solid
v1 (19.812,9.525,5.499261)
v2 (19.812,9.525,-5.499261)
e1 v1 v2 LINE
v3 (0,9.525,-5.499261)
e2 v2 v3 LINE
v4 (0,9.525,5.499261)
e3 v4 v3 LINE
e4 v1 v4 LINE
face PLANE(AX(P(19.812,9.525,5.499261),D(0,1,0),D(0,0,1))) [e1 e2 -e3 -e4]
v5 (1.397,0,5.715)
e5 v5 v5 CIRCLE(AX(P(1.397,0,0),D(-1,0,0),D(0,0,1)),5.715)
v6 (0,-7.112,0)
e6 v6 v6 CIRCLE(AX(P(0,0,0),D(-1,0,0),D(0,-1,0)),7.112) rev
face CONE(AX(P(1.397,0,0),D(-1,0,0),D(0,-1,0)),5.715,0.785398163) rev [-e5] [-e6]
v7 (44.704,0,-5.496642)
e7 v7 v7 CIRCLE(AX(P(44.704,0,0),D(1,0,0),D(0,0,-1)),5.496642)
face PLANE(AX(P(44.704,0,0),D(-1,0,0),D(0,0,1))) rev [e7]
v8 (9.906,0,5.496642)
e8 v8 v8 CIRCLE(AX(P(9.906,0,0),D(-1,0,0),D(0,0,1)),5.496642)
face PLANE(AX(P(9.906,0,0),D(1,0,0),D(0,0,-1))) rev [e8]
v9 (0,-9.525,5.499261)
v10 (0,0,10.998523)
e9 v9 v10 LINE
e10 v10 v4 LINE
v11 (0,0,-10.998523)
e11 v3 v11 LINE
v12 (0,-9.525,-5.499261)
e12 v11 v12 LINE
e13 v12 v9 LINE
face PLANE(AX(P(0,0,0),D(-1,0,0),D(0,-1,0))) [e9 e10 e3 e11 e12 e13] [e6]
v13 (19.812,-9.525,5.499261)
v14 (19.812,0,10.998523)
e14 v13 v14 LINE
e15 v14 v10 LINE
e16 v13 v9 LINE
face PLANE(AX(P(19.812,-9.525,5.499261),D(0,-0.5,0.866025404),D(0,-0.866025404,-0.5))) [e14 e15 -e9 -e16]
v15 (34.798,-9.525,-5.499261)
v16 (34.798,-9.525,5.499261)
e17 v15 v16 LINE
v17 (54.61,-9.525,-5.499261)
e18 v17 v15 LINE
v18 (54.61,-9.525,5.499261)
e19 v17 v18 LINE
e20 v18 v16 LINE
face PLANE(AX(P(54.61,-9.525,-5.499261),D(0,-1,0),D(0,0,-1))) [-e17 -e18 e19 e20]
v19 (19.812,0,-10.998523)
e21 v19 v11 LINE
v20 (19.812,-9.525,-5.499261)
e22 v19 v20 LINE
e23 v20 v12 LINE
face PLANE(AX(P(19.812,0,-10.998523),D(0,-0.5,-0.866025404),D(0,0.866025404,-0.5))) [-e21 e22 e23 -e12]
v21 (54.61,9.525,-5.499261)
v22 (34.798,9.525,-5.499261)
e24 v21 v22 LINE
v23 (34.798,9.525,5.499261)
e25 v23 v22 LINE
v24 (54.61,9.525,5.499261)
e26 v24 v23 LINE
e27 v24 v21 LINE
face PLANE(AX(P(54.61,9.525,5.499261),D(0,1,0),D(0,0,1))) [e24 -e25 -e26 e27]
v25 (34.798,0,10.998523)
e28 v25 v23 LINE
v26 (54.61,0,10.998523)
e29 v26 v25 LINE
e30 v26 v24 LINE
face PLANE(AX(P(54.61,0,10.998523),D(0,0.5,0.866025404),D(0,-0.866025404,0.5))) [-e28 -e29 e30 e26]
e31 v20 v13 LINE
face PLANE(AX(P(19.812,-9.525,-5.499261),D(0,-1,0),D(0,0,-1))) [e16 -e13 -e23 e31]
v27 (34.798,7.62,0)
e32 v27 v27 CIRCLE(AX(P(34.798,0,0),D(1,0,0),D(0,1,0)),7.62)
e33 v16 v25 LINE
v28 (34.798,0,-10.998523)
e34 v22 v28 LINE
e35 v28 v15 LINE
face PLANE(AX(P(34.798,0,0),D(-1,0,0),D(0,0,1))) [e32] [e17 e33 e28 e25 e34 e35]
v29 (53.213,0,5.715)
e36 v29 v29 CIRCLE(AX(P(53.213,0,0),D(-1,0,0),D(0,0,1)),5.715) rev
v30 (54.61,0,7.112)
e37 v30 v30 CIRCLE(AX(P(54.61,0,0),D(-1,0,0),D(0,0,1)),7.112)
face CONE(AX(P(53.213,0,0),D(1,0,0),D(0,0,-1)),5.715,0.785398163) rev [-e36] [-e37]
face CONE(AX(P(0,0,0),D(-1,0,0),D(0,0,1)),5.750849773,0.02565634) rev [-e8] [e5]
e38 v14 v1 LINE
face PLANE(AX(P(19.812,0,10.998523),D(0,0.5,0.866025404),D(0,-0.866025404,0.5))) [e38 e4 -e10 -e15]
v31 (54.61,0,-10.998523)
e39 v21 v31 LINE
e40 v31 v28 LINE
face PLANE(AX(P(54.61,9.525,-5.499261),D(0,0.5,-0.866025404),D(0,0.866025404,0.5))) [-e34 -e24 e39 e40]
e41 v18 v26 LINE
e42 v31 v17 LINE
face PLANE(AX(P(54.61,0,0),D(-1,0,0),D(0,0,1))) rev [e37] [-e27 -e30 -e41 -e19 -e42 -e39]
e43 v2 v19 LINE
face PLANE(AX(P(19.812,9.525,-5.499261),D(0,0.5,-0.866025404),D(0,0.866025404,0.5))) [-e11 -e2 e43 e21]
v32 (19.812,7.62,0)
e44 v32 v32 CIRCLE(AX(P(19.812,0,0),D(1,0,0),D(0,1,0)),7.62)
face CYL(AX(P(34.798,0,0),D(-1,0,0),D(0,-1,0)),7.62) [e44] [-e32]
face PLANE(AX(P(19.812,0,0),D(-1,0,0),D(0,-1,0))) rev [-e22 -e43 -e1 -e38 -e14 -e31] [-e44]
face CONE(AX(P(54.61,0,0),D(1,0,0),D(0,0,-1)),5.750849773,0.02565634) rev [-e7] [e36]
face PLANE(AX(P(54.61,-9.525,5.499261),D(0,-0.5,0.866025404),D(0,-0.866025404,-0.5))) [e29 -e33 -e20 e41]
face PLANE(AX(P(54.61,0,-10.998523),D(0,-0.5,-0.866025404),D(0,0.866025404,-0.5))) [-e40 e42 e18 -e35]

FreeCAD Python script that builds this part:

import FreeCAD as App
import Part
import Sketcher

V = App.Vector
Q = App.Units.Quantity


def edges_at(feature, points):
    """Names of the edges that pass closest to the given points."""
    edges = feature.Shape.Edges
    near = lambda p: min(range(len(edges)), key=lambda i: edges[i].distToShape(Part.Vertex(*p))[0])
    return sorted({f"Edge{near(p) + 1}" for p in points})


def add_polygon(sketch, points):
    """Adds a closed chain of lines whose ends are joined by coincident constraints."""
    first, n = sketch.GeometryCount, len(points)
    for a, b in zip(points, points[1:] + points[:1]):
        sketch.addGeometry(Part.LineSegment(App.Vector(*a, 0), App.Vector(*b, 0)), False)
    for i in range(n):
        sketch.addConstraint(Sketcher.Constraint("Coincident", first + i, 2, first + (i + 1) % n, 1))

doc = App.newDocument("Part")
body = doc.addObject("PartDesign::Body", "Body")

# Sketch on YZ plane
sketch1 = doc.addObject("Sketcher::SketchObject", "Sketch")
body.addObject(sketch1)
sketch1.AttachmentSupport = (doc.YZ_Plane, [""])
sketch1.MapMode = "FlatFace"
add_polygon(sketch1, [(10, 5), (10, -5), (0, -11), (-10, -5), (-10, 5), (0, 11)])  # lines 0-5
sketch1.addConstraint([
    Sketcher.Constraint("Vertical", 0),
    Sketcher.Constraint("Vertical", 3),
    Sketcher.Constraint("Symmetric", 0, 2, 3, 2, -1, 1),
    Sketcher.Constraint("Symmetric", 1, 2, 4, 2, -1, 1),
    Sketcher.Constraint("PointOnObject", 1, 2, -2),
    Sketcher.Constraint("Parallel", 2, 5),
    Sketcher.Constraint("Horizontal", 0, 2, 2, 2),
    Sketcher.Constraint("Angle", 1, Q("-150 deg")),
    Sketcher.Constraint("DistanceX", 2, 2, 0, 2, Q("0.75 in")),
    Sketcher.Constraint("DistanceY", 0, 2, 0, 1, Q("10.998523 mm")),
])
pad1 = doc.addObject("PartDesign::Pad", "Pad")
body.addObject(pad1)
pad1.Profile = sketch1
pad1.Length = Q("0.78 in")

# Sketch on YZ plane
sketch2 = doc.addObject("Sketcher::SketchObject", "Sketch001")
body.addObject(sketch2)
sketch2.AttachmentSupport = (doc.YZ_Plane, [""])
sketch2.MapMode = "FlatFace"
sketch2.AttachmentOffset = App.Placement(V(0, 0, 0.78 * 25.4), App.Rotation())
sketch2.addGeometry(Part.Circle(V(0, 0, 0), V(0, 0, 1), 8), False)
sketch2.addConstraint([
    Sketcher.Constraint("Coincident", 0, 3, -1, 1),
    Sketcher.Constraint("Diameter", 0, Q("0.6 in")),
])
pad2 = doc.addObject("PartDesign::Pad", "Pad001")
body.addObject(pad2)
pad2.Profile = sketch2
pad2.Length = Q("0.59 in")

# Sketch on YZ plane
sketch3 = doc.addObject("Sketcher::SketchObject", "Sketch002")
body.addObject(sketch3)
sketch3.AttachmentSupport = (doc.YZ_Plane, [""])
sketch3.MapMode = "FlatFace"
sketch3.AttachmentOffset = App.Placement(V(0, 0, 1.37 * 25.4), App.Rotation())
add_polygon(sketch3, [(-10, -5), (-10, 5), (0, 11), (10, 5), (10, -5), (0, -11)])  # lines 0-5
sketch3.addConstraint([
    Sketcher.Constraint("Vertical", 0),
    Sketcher.Constraint("Vertical", 3),
    Sketcher.Constraint("Symmetric", 0, 2, 3, 2, -1, 1),
    Sketcher.Constraint("Symmetric", 1, 2, 4, 2, -1, 1),
    Sketcher.Constraint("PointOnObject", 1, 2, -2),
    Sketcher.Constraint("Parallel", 2, 5),
    Sketcher.Constraint("Horizontal", 0, 2, 2, 2),
    Sketcher.Constraint("Angle", 1, Q("30 deg")),
    Sketcher.Constraint("DistanceX", 0, 2, 2, 2, Q("0.75 in")),
    Sketcher.Constraint("DistanceY", 0, 1, 0, 2, Q("10.998523 mm")),
])
pad3 = doc.addObject("PartDesign::Pad", "Pad002")
body.addObject(pad3)
pad3.Profile = sketch3
pad3.Length = Q("0.78 in")

# Sketch on XZ plane
sketch4 = doc.addObject("Sketcher::SketchObject", "Sketch003")
body.addObject(sketch4)
sketch4.AttachmentSupport = (doc.XZ_Plane, [""])
sketch4.MapMode = "FlatFace"
add_polygon(sketch4, [(45, 0), (55, 0), (55, -6), (45, -5)])  # lines 0-3
sketch4.addConstraint([
    Sketcher.Constraint("Horizontal", 0),
    Sketcher.Constraint("Vertical", 1),
    Sketcher.Constraint("Vertical", 3),
    Sketcher.Constraint("PointOnObject", 0, 2, -1),
    Sketcher.Constraint("DistanceX", 0, 1, 0, 2, Q("0.39 in")),
    Sketcher.Constraint("DistanceX", -1, 1, 0, 2, Q("2.15 in")),
    Sketcher.Constraint("Angle", 2, Q("178.53 deg")),
    Sketcher.Constraint("DistanceY", 1, 2, 1, 1, Q("5.75085 mm")),
])
groove = doc.addObject("PartDesign::Groove", "Groove")
body.addObject(groove)
groove.Profile = sketch4
groove.ReferenceAxis = (sketch4, ["H_Axis"])
groove.Angle = 360

# Sketch on XZ plane
sketch5 = doc.addObject("Sketcher::SketchObject", "Sketch004")
body.addObject(sketch5)
sketch5.AttachmentSupport = (doc.XZ_Plane, [""])
sketch5.MapMode = "FlatFace"
add_polygon(sketch5, [(10, 0), (0, 0), (0, 6), (10, 5)])  # lines 0-3
sketch5.addConstraint([
    Sketcher.Constraint("Horizontal", 0),
    Sketcher.Constraint("Vertical", 1),
    Sketcher.Constraint("Vertical", 3),
    Sketcher.Constraint("Coincident", 0, 2, -1, 1),
    Sketcher.Constraint("DistanceX", 0, 2, 0, 1, Q("0.39 in")),
    Sketcher.Constraint("Angle", 2, Q("-1.47 deg")),
    Sketcher.Constraint("DistanceY", 1, 1, 1, 2, Q("5.75085 mm")),
])
groove2 = doc.addObject("PartDesign::Groove", "Groove001")
body.addObject(groove2)
groove2.Profile = sketch5
groove2.ReferenceAxis = (sketch5, ["H_Axis"])
groove2.Angle = 360
doc.recompute()

chamfer = doc.addObject("PartDesign::Chamfer", "Chamfer")
body.addObject(chamfer)
chamfer.Base = (groove2, edges_at(groove2, [(54.61, 0, 5.751)]))
chamfer.ChamferType = "Two distances"
chamfer.Size = 1.36115
chamfer.Size2 = 1.39746
doc.recompute()

chamfer2 = doc.addObject("PartDesign::Chamfer", "Chamfer001")
body.addObject(chamfer2)
chamfer2.Base = (chamfer, edges_at(chamfer, [(0, 0, -5.751)]))
chamfer2.ChamferType = "Two distances"
chamfer2.Size = 1.36115
chamfer2.Size2 = 1.39746

doc.recompute()
